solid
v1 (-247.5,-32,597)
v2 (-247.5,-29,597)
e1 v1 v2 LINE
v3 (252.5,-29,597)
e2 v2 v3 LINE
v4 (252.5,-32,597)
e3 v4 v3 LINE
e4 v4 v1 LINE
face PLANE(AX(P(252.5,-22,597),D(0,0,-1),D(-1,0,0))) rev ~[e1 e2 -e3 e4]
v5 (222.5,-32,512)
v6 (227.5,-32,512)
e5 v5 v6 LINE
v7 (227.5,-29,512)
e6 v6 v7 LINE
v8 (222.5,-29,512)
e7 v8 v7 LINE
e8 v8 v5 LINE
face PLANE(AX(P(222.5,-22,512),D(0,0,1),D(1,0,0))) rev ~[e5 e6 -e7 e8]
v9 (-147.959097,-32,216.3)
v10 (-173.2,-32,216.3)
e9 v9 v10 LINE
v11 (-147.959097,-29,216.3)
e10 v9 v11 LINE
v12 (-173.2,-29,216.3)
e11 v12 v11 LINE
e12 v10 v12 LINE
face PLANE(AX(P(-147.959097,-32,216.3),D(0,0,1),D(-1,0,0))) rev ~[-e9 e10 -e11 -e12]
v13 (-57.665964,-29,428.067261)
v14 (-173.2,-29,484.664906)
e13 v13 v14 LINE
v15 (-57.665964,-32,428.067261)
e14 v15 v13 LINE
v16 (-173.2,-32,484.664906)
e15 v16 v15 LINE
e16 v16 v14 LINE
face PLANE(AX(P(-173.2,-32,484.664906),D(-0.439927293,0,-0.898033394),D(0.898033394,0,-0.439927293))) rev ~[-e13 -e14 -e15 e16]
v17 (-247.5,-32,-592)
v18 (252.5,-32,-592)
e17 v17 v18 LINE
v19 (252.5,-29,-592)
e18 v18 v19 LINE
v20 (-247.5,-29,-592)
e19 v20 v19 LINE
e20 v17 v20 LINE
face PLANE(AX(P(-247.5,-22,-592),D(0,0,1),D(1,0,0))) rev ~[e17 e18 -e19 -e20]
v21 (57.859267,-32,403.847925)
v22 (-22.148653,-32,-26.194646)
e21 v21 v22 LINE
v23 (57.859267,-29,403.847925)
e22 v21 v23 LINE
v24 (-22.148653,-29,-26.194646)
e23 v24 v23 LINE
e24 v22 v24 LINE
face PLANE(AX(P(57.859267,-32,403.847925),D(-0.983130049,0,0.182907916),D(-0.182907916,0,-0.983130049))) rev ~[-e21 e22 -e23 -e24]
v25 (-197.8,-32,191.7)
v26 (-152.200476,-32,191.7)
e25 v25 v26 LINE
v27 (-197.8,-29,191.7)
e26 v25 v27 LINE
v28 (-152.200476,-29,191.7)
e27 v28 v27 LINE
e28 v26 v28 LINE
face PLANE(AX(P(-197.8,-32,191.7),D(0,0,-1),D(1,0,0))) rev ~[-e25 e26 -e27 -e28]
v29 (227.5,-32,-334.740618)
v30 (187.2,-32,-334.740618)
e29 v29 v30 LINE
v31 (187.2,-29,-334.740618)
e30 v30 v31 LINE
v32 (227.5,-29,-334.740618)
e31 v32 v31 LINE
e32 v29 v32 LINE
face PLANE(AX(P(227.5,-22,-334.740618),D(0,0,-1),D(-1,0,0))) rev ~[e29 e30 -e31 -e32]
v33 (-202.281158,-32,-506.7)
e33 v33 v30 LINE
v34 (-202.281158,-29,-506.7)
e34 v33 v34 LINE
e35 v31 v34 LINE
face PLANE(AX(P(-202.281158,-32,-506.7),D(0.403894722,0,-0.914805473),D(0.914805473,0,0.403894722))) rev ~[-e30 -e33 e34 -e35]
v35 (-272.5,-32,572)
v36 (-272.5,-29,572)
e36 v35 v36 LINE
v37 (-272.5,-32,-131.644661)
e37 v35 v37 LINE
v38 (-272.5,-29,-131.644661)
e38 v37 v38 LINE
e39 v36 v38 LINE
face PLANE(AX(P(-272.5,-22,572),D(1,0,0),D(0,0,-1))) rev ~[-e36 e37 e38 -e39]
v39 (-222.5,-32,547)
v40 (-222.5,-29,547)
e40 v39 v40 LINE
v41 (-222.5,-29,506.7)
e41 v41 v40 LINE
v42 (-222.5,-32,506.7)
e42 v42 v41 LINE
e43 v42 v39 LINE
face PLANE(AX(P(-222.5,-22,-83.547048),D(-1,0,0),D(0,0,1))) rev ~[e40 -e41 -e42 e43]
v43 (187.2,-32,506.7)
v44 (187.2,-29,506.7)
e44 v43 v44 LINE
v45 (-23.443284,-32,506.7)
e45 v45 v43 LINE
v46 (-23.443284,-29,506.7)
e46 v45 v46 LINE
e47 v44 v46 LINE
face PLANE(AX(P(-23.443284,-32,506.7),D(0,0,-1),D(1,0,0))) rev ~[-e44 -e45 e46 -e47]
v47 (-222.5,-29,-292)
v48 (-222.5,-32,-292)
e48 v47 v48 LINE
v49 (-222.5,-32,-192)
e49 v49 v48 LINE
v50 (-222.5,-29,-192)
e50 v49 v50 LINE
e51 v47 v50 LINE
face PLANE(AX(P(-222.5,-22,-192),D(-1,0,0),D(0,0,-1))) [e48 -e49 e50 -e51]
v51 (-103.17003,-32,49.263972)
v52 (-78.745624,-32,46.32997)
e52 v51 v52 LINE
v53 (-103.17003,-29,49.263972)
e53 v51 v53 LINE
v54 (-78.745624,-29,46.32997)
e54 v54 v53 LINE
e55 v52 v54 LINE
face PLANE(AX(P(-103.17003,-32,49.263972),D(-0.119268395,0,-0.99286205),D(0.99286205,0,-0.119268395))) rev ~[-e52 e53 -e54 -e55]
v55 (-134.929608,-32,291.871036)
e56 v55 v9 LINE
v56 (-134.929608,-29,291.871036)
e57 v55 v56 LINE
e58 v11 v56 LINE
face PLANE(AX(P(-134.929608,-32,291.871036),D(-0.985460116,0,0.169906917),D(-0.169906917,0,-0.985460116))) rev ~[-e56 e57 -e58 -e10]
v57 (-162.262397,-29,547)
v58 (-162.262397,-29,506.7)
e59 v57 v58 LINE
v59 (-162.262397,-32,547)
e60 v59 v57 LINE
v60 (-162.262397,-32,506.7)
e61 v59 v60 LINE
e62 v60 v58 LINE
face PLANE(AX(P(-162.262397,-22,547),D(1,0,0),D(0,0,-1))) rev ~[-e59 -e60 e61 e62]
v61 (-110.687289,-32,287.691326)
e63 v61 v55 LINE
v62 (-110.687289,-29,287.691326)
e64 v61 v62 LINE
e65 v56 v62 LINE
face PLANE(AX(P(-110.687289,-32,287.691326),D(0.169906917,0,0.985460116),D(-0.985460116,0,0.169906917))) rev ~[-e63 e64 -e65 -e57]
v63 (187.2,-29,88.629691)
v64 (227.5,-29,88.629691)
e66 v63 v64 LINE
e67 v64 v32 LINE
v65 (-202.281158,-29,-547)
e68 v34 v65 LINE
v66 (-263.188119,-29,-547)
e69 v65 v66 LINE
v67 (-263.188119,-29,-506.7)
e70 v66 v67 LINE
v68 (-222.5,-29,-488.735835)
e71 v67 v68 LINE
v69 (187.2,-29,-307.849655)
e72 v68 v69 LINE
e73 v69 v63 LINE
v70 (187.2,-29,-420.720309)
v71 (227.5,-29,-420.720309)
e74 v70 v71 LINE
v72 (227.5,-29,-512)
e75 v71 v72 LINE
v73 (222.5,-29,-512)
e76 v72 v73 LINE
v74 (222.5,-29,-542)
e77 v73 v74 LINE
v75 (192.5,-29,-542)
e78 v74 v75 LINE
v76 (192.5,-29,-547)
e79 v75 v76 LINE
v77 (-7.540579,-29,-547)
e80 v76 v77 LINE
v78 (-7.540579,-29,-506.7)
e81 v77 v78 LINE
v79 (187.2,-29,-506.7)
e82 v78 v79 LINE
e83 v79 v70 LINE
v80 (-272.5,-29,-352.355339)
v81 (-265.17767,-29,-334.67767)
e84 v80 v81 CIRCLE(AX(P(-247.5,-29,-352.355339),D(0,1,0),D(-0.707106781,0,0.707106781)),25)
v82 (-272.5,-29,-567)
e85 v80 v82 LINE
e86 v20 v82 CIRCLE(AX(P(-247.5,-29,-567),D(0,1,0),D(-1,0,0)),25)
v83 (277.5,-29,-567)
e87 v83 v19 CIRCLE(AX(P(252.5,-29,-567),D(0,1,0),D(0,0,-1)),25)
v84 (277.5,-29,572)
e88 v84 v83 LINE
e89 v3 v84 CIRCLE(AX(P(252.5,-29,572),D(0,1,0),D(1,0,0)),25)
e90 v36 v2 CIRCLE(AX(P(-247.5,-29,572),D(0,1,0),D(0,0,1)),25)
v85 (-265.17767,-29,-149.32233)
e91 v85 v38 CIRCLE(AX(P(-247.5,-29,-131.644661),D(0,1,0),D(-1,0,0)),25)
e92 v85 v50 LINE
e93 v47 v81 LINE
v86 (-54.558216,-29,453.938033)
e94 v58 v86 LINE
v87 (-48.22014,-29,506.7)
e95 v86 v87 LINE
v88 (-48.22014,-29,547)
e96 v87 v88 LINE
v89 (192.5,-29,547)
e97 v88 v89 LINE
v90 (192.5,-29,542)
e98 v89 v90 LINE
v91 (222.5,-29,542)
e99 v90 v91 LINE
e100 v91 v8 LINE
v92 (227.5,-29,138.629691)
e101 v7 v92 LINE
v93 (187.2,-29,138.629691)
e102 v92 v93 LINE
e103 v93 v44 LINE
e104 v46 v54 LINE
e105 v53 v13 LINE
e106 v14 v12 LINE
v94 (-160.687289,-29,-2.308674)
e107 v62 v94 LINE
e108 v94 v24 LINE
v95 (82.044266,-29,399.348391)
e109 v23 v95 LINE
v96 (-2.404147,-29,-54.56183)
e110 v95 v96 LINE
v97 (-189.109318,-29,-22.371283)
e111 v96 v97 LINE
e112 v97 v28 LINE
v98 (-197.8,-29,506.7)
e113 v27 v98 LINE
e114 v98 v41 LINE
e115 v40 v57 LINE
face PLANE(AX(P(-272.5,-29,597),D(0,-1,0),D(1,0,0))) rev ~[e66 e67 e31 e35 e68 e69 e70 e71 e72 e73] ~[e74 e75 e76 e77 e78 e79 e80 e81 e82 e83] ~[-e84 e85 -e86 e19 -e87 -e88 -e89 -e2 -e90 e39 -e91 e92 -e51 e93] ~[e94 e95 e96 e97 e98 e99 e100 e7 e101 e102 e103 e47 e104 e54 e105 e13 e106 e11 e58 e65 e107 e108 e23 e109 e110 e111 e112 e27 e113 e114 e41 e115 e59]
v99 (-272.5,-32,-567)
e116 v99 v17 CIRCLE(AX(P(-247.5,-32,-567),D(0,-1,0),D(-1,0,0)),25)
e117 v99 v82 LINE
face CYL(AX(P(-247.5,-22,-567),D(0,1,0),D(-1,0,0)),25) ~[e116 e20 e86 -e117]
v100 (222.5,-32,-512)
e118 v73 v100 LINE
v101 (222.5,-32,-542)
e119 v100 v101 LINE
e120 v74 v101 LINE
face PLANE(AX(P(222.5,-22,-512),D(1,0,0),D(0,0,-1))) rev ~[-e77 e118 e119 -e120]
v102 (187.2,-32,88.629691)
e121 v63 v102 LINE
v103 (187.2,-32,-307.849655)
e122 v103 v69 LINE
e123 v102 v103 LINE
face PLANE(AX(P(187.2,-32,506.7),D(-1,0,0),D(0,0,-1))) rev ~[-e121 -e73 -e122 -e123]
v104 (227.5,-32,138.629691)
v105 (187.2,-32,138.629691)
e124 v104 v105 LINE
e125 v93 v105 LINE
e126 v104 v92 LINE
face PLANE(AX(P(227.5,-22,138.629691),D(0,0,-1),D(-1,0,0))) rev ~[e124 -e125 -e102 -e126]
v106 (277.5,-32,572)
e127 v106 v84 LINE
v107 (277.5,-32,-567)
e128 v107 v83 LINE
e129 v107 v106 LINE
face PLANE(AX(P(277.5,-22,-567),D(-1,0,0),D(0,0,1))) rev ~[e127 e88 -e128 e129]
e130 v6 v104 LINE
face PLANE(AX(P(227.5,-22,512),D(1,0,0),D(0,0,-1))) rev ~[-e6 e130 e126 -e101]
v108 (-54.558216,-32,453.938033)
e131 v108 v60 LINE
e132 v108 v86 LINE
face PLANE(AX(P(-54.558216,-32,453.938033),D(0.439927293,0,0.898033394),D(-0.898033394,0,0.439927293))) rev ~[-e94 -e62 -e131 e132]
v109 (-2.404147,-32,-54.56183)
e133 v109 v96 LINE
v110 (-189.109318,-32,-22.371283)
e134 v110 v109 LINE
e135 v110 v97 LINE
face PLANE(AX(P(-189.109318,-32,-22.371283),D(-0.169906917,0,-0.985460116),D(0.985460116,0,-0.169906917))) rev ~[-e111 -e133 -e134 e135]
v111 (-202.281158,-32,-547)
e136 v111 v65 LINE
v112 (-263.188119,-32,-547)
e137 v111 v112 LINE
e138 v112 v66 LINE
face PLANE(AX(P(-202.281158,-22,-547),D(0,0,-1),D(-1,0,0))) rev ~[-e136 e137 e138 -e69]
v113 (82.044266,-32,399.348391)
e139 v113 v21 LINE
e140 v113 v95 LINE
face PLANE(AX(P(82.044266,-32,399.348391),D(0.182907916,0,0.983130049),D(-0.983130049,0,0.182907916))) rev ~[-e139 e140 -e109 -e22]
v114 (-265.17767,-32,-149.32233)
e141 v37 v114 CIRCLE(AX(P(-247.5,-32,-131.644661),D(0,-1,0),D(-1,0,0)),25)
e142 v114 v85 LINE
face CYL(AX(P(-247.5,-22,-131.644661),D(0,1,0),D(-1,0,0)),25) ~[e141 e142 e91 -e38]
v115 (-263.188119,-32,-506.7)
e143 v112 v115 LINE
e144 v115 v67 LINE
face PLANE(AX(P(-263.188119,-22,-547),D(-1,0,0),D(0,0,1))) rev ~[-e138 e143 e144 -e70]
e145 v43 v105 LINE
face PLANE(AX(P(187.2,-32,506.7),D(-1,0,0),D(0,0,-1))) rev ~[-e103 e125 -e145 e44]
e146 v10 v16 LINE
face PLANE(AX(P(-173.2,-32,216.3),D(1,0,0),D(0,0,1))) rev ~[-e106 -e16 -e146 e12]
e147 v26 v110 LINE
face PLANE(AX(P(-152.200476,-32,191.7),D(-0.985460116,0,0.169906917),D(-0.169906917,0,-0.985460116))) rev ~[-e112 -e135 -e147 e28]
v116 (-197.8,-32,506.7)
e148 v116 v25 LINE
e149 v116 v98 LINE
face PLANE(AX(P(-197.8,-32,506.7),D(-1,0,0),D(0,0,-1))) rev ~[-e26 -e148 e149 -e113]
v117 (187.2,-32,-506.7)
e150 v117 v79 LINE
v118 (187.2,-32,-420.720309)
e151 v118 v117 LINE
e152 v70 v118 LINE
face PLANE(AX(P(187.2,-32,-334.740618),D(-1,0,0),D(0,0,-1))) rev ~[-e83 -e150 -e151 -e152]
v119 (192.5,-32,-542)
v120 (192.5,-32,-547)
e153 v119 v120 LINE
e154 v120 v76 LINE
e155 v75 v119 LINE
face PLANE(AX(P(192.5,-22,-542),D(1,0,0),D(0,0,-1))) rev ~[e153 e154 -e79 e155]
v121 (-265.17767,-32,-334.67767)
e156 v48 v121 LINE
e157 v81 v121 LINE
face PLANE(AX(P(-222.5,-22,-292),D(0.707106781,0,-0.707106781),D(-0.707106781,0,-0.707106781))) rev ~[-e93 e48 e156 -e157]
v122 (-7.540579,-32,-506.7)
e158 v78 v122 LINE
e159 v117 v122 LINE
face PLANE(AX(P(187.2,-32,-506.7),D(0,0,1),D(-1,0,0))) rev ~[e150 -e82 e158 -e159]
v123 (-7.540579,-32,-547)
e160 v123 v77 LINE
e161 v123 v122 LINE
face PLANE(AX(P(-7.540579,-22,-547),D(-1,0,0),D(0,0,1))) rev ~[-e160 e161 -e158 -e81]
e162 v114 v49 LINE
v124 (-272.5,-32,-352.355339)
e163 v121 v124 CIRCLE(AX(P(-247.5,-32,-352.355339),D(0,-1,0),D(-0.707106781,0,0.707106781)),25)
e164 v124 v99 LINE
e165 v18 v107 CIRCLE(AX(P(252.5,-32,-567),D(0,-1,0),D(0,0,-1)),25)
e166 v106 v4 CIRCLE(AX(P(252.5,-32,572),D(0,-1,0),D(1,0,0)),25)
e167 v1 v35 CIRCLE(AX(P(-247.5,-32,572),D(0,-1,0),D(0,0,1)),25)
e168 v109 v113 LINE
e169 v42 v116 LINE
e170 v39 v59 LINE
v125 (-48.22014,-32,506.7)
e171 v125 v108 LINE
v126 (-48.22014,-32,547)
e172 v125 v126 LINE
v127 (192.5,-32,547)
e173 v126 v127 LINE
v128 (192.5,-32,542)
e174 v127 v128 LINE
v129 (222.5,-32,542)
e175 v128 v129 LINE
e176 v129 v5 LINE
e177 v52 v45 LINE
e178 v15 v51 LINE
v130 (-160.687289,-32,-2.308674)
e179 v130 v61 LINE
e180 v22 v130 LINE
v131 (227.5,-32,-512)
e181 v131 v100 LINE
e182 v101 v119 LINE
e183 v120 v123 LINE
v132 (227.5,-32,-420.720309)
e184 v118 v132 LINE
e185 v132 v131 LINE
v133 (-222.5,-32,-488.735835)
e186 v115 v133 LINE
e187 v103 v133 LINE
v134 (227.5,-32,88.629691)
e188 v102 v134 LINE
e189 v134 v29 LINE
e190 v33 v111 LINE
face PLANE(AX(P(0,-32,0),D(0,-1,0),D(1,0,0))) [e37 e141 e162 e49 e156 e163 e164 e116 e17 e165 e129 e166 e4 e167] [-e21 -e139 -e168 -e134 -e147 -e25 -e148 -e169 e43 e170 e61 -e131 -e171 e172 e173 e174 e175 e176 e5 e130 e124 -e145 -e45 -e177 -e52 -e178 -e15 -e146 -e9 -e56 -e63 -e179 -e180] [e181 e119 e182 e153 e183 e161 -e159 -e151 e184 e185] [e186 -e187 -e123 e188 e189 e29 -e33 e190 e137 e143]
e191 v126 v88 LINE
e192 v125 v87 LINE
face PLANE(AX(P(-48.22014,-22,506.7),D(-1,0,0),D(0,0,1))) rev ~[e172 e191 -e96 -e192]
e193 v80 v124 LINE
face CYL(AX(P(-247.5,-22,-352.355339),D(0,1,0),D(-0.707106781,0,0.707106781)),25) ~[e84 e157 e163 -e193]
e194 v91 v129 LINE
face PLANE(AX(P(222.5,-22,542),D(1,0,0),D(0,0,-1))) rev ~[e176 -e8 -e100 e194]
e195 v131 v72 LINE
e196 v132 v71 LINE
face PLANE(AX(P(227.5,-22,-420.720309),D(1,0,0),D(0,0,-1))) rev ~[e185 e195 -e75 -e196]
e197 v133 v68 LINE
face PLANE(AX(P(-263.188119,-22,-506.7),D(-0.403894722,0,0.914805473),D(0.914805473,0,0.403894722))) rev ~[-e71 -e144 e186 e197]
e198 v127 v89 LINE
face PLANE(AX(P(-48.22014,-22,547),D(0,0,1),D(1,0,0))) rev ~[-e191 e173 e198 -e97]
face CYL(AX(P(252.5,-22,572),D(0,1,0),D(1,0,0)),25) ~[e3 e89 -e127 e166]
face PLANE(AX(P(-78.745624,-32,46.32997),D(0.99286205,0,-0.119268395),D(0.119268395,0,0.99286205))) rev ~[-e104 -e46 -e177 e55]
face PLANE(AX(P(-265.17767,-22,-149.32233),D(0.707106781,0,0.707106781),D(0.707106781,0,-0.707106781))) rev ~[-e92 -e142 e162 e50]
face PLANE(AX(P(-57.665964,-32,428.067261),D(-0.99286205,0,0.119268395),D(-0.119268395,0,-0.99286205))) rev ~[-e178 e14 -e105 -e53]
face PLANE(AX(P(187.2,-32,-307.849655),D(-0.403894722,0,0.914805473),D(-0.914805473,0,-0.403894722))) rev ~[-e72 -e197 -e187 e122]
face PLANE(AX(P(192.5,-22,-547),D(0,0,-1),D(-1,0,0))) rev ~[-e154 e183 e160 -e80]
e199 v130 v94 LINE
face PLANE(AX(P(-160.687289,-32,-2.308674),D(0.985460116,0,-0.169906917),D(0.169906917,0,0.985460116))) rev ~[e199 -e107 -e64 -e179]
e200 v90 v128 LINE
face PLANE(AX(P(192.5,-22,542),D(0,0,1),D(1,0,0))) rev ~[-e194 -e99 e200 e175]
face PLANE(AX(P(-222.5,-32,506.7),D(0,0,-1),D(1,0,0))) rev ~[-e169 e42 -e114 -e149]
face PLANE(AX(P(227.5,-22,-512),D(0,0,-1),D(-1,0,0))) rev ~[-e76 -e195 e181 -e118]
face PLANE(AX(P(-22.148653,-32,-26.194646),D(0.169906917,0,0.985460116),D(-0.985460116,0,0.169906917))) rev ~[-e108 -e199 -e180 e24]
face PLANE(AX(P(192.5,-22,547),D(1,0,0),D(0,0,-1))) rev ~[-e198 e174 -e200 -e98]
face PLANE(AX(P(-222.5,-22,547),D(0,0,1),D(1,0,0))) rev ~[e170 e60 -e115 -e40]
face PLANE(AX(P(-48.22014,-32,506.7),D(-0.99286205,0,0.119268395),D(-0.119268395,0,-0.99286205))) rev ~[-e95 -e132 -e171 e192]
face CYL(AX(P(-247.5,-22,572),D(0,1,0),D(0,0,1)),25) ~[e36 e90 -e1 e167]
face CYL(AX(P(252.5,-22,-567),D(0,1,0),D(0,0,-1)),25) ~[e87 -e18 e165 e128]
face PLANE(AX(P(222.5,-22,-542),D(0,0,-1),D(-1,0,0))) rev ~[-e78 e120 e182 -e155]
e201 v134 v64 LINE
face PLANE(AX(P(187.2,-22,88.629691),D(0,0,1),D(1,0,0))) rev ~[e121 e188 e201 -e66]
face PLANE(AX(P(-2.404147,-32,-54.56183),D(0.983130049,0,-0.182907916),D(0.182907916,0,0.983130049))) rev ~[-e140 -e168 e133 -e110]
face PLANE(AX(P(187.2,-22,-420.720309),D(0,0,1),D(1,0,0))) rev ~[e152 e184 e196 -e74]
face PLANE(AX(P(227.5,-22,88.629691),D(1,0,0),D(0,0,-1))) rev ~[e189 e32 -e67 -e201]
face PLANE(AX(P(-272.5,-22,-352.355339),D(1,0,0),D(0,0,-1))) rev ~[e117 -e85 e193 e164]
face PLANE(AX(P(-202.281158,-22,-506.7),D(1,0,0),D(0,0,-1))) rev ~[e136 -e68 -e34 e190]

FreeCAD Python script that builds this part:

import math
import FreeCAD as App
import Part
import Sketcher

doc = App.newDocument("Part")
params = doc.addObject("Spreadsheet::Sheet", "Params")
for row, (alias, value) in enumerate([
    ("sketch1_width", "445 mm"),
    ("sketch1_height", "1084 mm"),
    ("pad1_length", "32 mm"),
    ("sketch2_width", "445 mm"),
    ("sketch2_width2", "28 mm"),
    ("sketch2_width3", "132 mm"),
    ("sketch2_height", "820 mm"),
    ("sketch2_height2", "1084 mm"),
    ("pocket1_length", "10 mm"),
    ("sketch3_width", "445 mm"),
    ("sketch3_width2", "445 mm"),
    ("sketch3_height", "315 mm"),
    ("sketch3_height2", "1084 mm"),
    ("sketch3_width3", "24.7 mm"),
    ("pocket2_length", "10 mm"),
    ("sketch4_radius", "25 mm"),
    ("sketch4_width", "500 mm"),
    ("sketch4_width2", "30 mm"),
    ("sketch4_width3", "5 mm"),
    ("sketch4_height", "100 mm"),
    ("pad2_length", "22 mm"),
    ("pad2_length2", "10 mm"),
    ("sketch5_width", "550 mm"),
    ("sketch5_height", "29 mm"),
], start=1):
    params.set(f"A{row}", alias)
    params.set(f"B{row}", "=" + value)
    params.setAlias(f"B{row}", alias)

body = doc.addObject("PartDesign::Body", "Body")

sketch1 = body.newObject("Sketcher::SketchObject", "Sketch")
sketch1.AttachmentSupport = (doc.getObject("XZ_Plane"), [""])
sketch1.MapMode = "FlatFace"
sketch1.addGeometry([
    Part.LineSegment(App.Vector(-222, 542, 0), App.Vector(-222, -542, 0)),
    Part.LineSegment(App.Vector(-222, -542, 0), App.Vector(222, -542, 0)),
    Part.LineSegment(App.Vector(222, -542, 0), App.Vector(222, 542, 0)),
    Part.LineSegment(App.Vector(222, 542, 0), App.Vector(-222, 542, 0)),
], False)
sketch1.addConstraint([
    Sketcher.Constraint("Coincident", 0, 2, 1, 1),
    Sketcher.Constraint("Coincident", 1, 2, 2, 1),
    Sketcher.Constraint("Coincident", 2, 2, 3, 1),
    Sketcher.Constraint("Coincident", 3, 2, 0, 1),
    Sketcher.Constraint("Vertical", 0),
    Sketcher.Constraint("Horizontal", 1),
    Sketcher.Constraint("Vertical", 2),
    Sketcher.Constraint("Horizontal", 3),
    Sketcher.Constraint("Symmetric", 0, 2, 2, 2, -1, 1),
    Sketcher.Constraint("DistanceX", 1, 1, 1, 2, 445.0),
    Sketcher.Constraint("DistanceY", 0, 2, 0, 1, 1084.0),
])
sketch1.setExpression("Constraints[9]", "Params.sketch1_width")
sketch1.setExpression("Constraints[10]", "Params.sketch1_height")
pad1 = body.newObject("PartDesign::Pad", "Pad")
pad1.Profile = sketch1
pad1.setExpression("Length", "Params.pad1_length")

sketch2 = body.newObject("Sketcher::SketchObject", "Sketch001")
sketch2.AttachmentSupport = (doc.getObject("XZ_Plane"), [""])
sketch2.MapMode = "FlatFace"
sketch2.AttachmentOffset = App.Placement(App.Vector(0, 0, 32), App.Rotation())
sketch2.addGeometry([
    Part.LineSegment(App.Vector(-22.79263, -47.697885, 0), App.Vector(-5.0528, -50.756476, 0)),
    Part.LineSegment(App.Vector(-5.0528, -50.756476, 0), App.Vector(78.196341, 396.707658, 0)),
    Part.LineSegment(App.Vector(78.196341, 396.707658, 0), App.Vector(60.5, 400, 0)),
    Part.LineSegment(App.Vector(60.5, 400, 0), App.Vector(-19.5, -30, 0)),
    Part.LineSegment(App.Vector(-19.5, -30, 0), App.Vector(-164.5, -5, 0)),
    Part.LineSegment(App.Vector(-164.5, -5, 0), App.Vector(-114.5, 285, 0)),
    Part.LineSegment(App.Vector(-114.5, 285, 0), App.Vector(-132.238282, 288.058324, 0)),
    Part.LineSegment(App.Vector(-132.238282, 288.058324, 0), App.Vector(-145.179373, 213, 0)),
    Part.LineSegment(App.Vector(-145.179373, 213, 0), App.Vector(-176.5, 213, 0)),
    Part.LineSegment(App.Vector(-176.5, 213, 0), App.Vector(-176.5, 489.956202, 0)),
    Part.LineSegment(App.Vector(-176.5, 489.956202, 0), App.Vector(-54.110068, 430, 0)),
    Part.LineSegment(App.Vector(-54.110068, 430, 0), App.Vector(-99.5, 52.146831, 0)),
    Part.LineSegment(App.Vector(-99.5, 52.146831, 0), App.Vector(-81.628483, 50, 0)),
    Part.LineSegment(App.Vector(-81.628483, 50, 0), App.Vector(-26.370593, 510, 0)),
    Part.LineSegment(App.Vector(-26.370593, 510, 0), App.Vector(190.5, 510, 0)),
    Part.LineSegment(App.Vector(190.5, 510, 0), App.Vector(190.5, -310, 0)),
    Part.LineSegment(App.Vector(190.5, -310, 0), App.Vector(-366.990926, -556.137183, 0)),
    Part.LineSegment(App.Vector(-366.990926, -556.137183, 0), App.Vector(-359.720821, -572.603682, 0)),
    Part.LineSegment(App.Vector(-359.720821, -572.603682, 0), App.Vector(-222.5, -512.019474, 0)),
    Part.LineSegment(App.Vector(-222.5, -512.019474, 0), App.Vector(-222.5, -542, 0)),
    Part.LineSegment(App.Vector(-222.5, -542, 0), App.Vector(222.5, -542, 0)),
    Part.LineSegment(App.Vector(222.5, -542, 0), App.Vector(222.5, 542, 0)),
    Part.LineSegment(App.Vector(222.5, 542, 0), App.Vector(-222.5, 542, 0)),
    Part.LineSegment(App.Vector(-222.5, 542, 0), App.Vector(-222.5, 510, 0)),
    Part.LineSegment(App.Vector(-222.5, 510, 0), App.Vector(-194.5, 510, 0)),
    Part.LineSegment(App.Vector(-194.5, 510, 0), App.Vector(-194.5, 195, 0)),
    Part.LineSegment(App.Vector(-194.5, 195, 0), App.Vector(-148.282821, 195, 0)),
    Part.LineSegment(App.Vector(-148.282821, 195, 0), App.Vector(-185.296607, -19.679958, 0)),
    Part.LineSegment(App.Vector(-185.296607, -19.679958, 0), App.Vector(-167.558324, -22.738282, 0)),
    Part.LineSegment(App.Vector(-167.558324, -22.738282, 0), App.Vector(-22.79263, -47.697885, 0)),
    Part.LineSegment(App.Vector(190.5, -329.676314, 0), App.Vector(190.5, -510, 0)),
    Part.LineSegment(App.Vector(190.5, -510, 0), App.Vector(-217.925973, -510, 0)),
    Part.LineSegment(App.Vector(-217.925973, -510, 0), App.Vector(190.5, -329.676314, 0)),
    Part.LineSegment(App.Vector(-44.5, 510, 0), App.Vector(-51.836106, 448.929833, 0)),
    Part.LineSegment(App.Vector(-51.836106, 448.929833, 0), App.Vector(-176.5, 510, 0)),
    Part.LineSegment(App.Vector(-176.5, 510, 0), App.Vector(-44.5, 510, 0)),
], False)
sketch2.addConstraint([
    Sketcher.Constraint("Coincident", 0, 2, 1, 1),
    Sketcher.Constraint("Coincident", 1, 2, 2, 1),
    Sketcher.Constraint("Coincident", 2, 2, 3, 1),
    Sketcher.Constraint("Coincident", 3, 2, 4, 1),
    Sketcher.Constraint("Coincident", 4, 2, 5, 1),
    Sketcher.Constraint("Coincident", 5, 2, 6, 1),
    Sketcher.Constraint("Coincident", 6, 2, 7, 1),
    Sketcher.Constraint("Coincident", 7, 2, 8, 1),
    Sketcher.Constraint("Coincident", 8, 2, 9, 1),
    Sketcher.Constraint("Coincident", 9, 2, 10, 1),
    Sketcher.Constraint("Coincident", 10, 2, 11, 1),
    Sketcher.Constraint("Coincident", 11, 2, 12, 1),
    Sketcher.Constraint("Coincident", 12, 2, 13, 1),
    Sketcher.Constraint("Coincident", 13, 2, 14, 1),
    Sketcher.Constraint("Coincident", 14, 2, 15, 1),
    Sketcher.Constraint("Coincident", 15, 2, 16, 1),
    Sketcher.Constraint("Coincident", 16, 2, 17, 1),
    Sketcher.Constraint("Coincident", 17, 2, 18, 1),
    Sketcher.Constraint("Coincident", 18, 2, 19, 1),
    Sketcher.Constraint("Coincident", 19, 2, 20, 1),
    Sketcher.Constraint("Coincident", 20, 2, 21, 1),
    Sketcher.Constraint("Coincident", 21, 2, 22, 1),
    Sketcher.Constraint("Coincident", 22, 2, 23, 1),
    Sketcher.Constraint("Coincident", 23, 2, 24, 1),
    Sketcher.Constraint("Coincident", 24, 2, 25, 1),
    Sketcher.Constraint("Coincident", 25, 2, 26, 1),
    Sketcher.Constraint("Coincident", 26, 2, 27, 1),
    Sketcher.Constraint("Coincident", 27, 2, 28, 1),
    Sketcher.Constraint("Coincident", 28, 2, 29, 1),
    Sketcher.Constraint("Coincident", 29, 2, 0, 1),
    Sketcher.Constraint("Coincident", 30, 2, 31, 1),
    Sketcher.Constraint("Coincident", 31, 2, 32, 1),
    Sketcher.Constraint("Coincident", 32, 2, 30, 1),
    Sketcher.Constraint("Coincident", 33, 2, 34, 1),
    Sketcher.Constraint("Coincident", 34, 2, 35, 1),
    Sketcher.Constraint("Coincident", 35, 2, 33, 1),
    Sketcher.Constraint("Horizontal", 8),
    Sketcher.Constraint("Vertical", 9),
    Sketcher.Constraint("Horizontal", 14),
    Sketcher.Constraint("Vertical", 15),
    Sketcher.Constraint("Vertical", 19),
    Sketcher.Constraint("Horizontal", 20),
    Sketcher.Constraint("Vertical", 21),
    Sketcher.Constraint("Horizontal", 22),
    Sketcher.Constraint("Vertical", 23),
    Sketcher.Constraint("Horizontal", 24),
    Sketcher.Constraint("Vertical", 25),
    Sketcher.Constraint("Horizontal", 26),
    Sketcher.Constraint("Vertical", 30),
    Sketcher.Constraint("Horizontal", 31),
    Sketcher.Constraint("Horizontal", 35),
    Sketcher.Constraint("Symmetric", 19, 2, 21, 2, -1, 1),
    Sketcher.Constraint("Symmetric", 14, 2, 30, 2, -1),
    Sketcher.Constraint("Perpendicular", 1, 2),
    Sketcher.Constraint("Perpendicular", 2, 3),
    Sketcher.Constraint("Parallel", 0, 4),
    Sketcher.Constraint("Perpendicular", 4, 5),
    Sketcher.Constraint("Perpendicular", 5, 6),
    Sketcher.Constraint("Perpendicular", 6, 7),
    Sketcher.Constraint("Perpendicular", 11, 12),
    Sketcher.Constraint("Perpendicular", 12, 13),
    Sketcher.Constraint("Perpendicular", 16, 17),
    Sketcher.Constraint("Perpendicular", 17, 18),
    Sketcher.Constraint("Parallel", 7, 27),
    Sketcher.Constraint("Perpendicular", 27, 28),
    Sketcher.Constraint("Parallel", 28, 29),
    Sketcher.Constraint("Parallel", 18, 32),
    Sketcher.Constraint("Parallel", 13, 33),
    Sketcher.Constraint("Parallel", 10, 34),
    Sketcher.Constraint("Horizontal", 14, 2, 23, 2),
    Sketcher.Constraint("Horizontal", 24, 2, 34, 2),
    Sketcher.Constraint("Vertical", 19, 2, 22, 2),
    Sketcher.Constraint("Vertical", 9, 2, 34, 2),
    Sketcher.Constraint("Equal", 2, 6),
    Sketcher.Constraint("Equal", 6, 12),
    Sketcher.Constraint("Equal", 12, 17),
    Sketcher.Constraint("Equal", 17, 28),
    Sketcher.Constraint("DistanceX", 20, 1, 20, 2, 445.0),
    Sketcher.Constraint("DistanceX", 24, 1, 24, 2, 28.0),
    Sketcher.Constraint("DistanceX", 35, 1, 35, 2, 132.0),
    Sketcher.Constraint("DistanceY", 15, 2, 15, 1, 820.0),
    Sketcher.Constraint("DistanceY", 21, 1, 21, 2, 1084.0),
    Sketcher.Constraint("DistanceY", 23, 2, 23, 1, 32.0),
    Sketcher.Constraint("DistanceY", 25, 2, 25, 1, 315.0),
    Sketcher.Constraint("Distance", 2, 18.0),
    Sketcher.Constraint("Distance", 18, 150.0),
    Sketcher.Constraint("DistanceY", -1, 1, 2, 2, 400.0),
    Sketcher.Constraint("DistanceY", 3, 2, -1, 1, 30.0),
    Sketcher.Constraint("DistanceY", 4, 2, -1, 1, 5.0),
    Sketcher.Constraint("DistanceY", -1, 1, 5, 2, 285.0),
    Sketcher.Constraint("DistanceY", -1, 1, 7, 2, 213.0),
    Sketcher.Constraint("DistanceY", -1, 1, 10, 2, 430.0),
    Sketcher.Constraint("DistanceY", -1, 1, 12, 2, 50.0),
    Sketcher.Constraint("DistanceX", 3, 2, 2, 2, 80.0),
    Sketcher.Constraint("DistanceX", 4, 2, 3, 2, 145.0),
    Sketcher.Constraint("DistanceX", 8, 2, 5, 2, 62.0),
    Sketcher.Constraint("DistanceX", 4, 2, 11, 2, 65.0),
    Sketcher.Constraint("DistanceX", 2, 2, 14, 2, 130.0),
    Sketcher.Constraint("DistanceX", 18, 2, 15, 2, 413.0),
    Sketcher.Constraint("DistanceY", 9, 1, 9, 2, 276.956202),
    Sketcher.Constraint("Distance", 32, 446.4621),
    Sketcher.Constraint("DistanceX", 26, 1, 26, 2, 46.217179),
    Sketcher.Constraint("DistanceX", 0, 2, -1, 1, 5.0528),
    Sketcher.Constraint("DistanceY", 17, 2, 16, 2, 16.466499),
    Sketcher.Constraint("Distance", 0, 18.00157),
    Sketcher.Constraint("DistanceX", 14, 1, 14, 2, 216.870593),
])
sketch2.setExpression("Constraints[77]", "Params.sketch2_width")
sketch2.setExpression("Constraints[78]", "Params.sketch2_width2")
sketch2.setExpression("Constraints[79]", "Params.sketch2_width3")
sketch2.setExpression("Constraints[80]", "Params.sketch2_height")
sketch2.setExpression("Constraints[81]", "Params.sketch2_height2")
pocket1 = body.newObject("PartDesign::Pocket", "Pocket")
pocket1.Profile = sketch2
pocket1.setExpression("Length", "Params.pocket1_length")

sketch3 = body.newObject("Sketcher::SketchObject", "Sketch002")
sketch3.AttachmentSupport = (doc.getObject("XZ_Plane"), [""])
sketch3.MapMode = "FlatFace"
sketch3.AttachmentOffset = App.Placement(App.Vector(0, 0, 32), App.Rotation())
sketch3.addGeometry([
    Part.LineSegment(App.Vector(-222.5, 542, 0), App.Vector(-222.5, 506.7, 0)),
    Part.LineSegment(App.Vector(-222.5, 506.7, 0), App.Vector(-197.8, 506.7, 0)),
    Part.LineSegment(App.Vector(-197.8, 506.7, 0), App.Vector(-197.8, 191.7, 0)),
    Part.LineSegment(App.Vector(-197.8, 191.7, 0), App.Vector(-152.200476, 191.7, 0)),
    Part.LineSegment(App.Vector(-152.200476, 191.7, 0), App.Vector(-189.109318, -22.371283, 0)),
    Part.LineSegment(App.Vector(-189.109318, -22.371283, 0), App.Vector(-2.404147, -54.56183, 0)),
    Part.LineSegment(App.Vector(-2.404147, -54.56183, 0), App.Vector(82.044266, 399.348391, 0)),
    Part.LineSegment(App.Vector(82.044266, 399.348391, 0), App.Vector(57.859267, 403.847925, 0)),
    Part.LineSegment(App.Vector(57.859267, 403.847925, 0), App.Vector(-22.148653, -26.194646, 0)),
    Part.LineSegment(App.Vector(-22.148653, -26.194646, 0), App.Vector(-160.687289, -2.308674, 0)),
    Part.LineSegment(App.Vector(-160.687289, -2.308674, 0), App.Vector(-110.687289, 287.691326, 0)),
    Part.LineSegment(App.Vector(-110.687289, 287.691326, 0), App.Vector(-134.929608, 291.871036, 0)),
    Part.LineSegment(App.Vector(-134.929608, 291.871036, 0), App.Vector(-147.959097, 216.3, 0)),
    Part.LineSegment(App.Vector(-147.959097, 216.3, 0), App.Vector(-173.2, 216.3, 0)),
    Part.LineSegment(App.Vector(-173.2, 216.3, 0), App.Vector(-173.2, 484.664906, 0)),
    Part.LineSegment(App.Vector(-173.2, 484.664906, 0), App.Vector(-57.665964, 428.067261, 0)),
    Part.LineSegment(App.Vector(-57.665964, 428.067261, 0), App.Vector(-103.17003, 49.263972, 0)),
    Part.LineSegment(App.Vector(-103.17003, 49.263972, 0), App.Vector(-78.745624, 46.32997, 0)),
    Part.LineSegment(App.Vector(-78.745624, 46.32997, 0), App.Vector(-23.443284, 506.7, 0)),
    Part.LineSegment(App.Vector(-23.443284, 506.7, 0), App.Vector(187.2, 506.7, 0)),
    Part.LineSegment(App.Vector(187.2, 506.7, 0), App.Vector(187.2, -307.849655, 0)),
    Part.LineSegment(App.Vector(187.2, -307.849655, 0), App.Vector(-222.5, -488.735835, 0)),
    Part.LineSegment(App.Vector(-222.5, -488.735835, 0), App.Vector(-222.5, -542, 0)),
    Part.LineSegment(App.Vector(-222.5, -542, 0), App.Vector(222.5, -542, 0)),
    Part.LineSegment(App.Vector(222.5, -542, 0), App.Vector(222.5, 542, 0)),
    Part.LineSegment(App.Vector(222.5, 542, 0), App.Vector(-222.5, 542, 0)),
    Part.LineSegment(App.Vector(187.2, -506.7, 0), App.Vector(-202.281158, -506.7, 0)),
    Part.LineSegment(App.Vector(-202.281158, -506.7, 0), App.Vector(187.2, -334.740618, 0)),
    Part.LineSegment(App.Vector(187.2, -334.740618, 0), App.Vector(187.2, -506.7, 0)),
    Part.LineSegment(App.Vector(-48.22014, 506.7, 0), App.Vector(-54.558216, 453.938033, 0)),
    Part.LineSegment(App.Vector(-54.558216, 453.938033, 0), App.Vector(-162.262397, 506.7, 0)),
    Part.LineSegment(App.Vector(-162.262397, 506.7, 0), App.Vector(-48.22014, 506.7, 0)),
], False)
sketch3.addConstraint([
    Sketcher.Constraint("Coincident", 0, 2, 1, 1),
    Sketcher.Constraint("Coincident", 1, 2, 2, 1),
    Sketcher.Constraint("Coincident", 2, 2, 3, 1),
    Sketcher.Constraint("Coincident", 3, 2, 4, 1),
    Sketcher.Constraint("Coincident", 4, 2, 5, 1),
    Sketcher.Constraint("Coincident", 5, 2, 6, 1),
    Sketcher.Constraint("Coincident", 6, 2, 7, 1),
    Sketcher.Constraint("Coincident", 7, 2, 8, 1),
    Sketcher.Constraint("Coincident", 8, 2, 9, 1),
    Sketcher.Constraint("Coincident", 9, 2, 10, 1),
    Sketcher.Constraint("Coincident", 10, 2, 11, 1),
    Sketcher.Constraint("Coincident", 11, 2, 12, 1),
    Sketcher.Constraint("Coincident", 12, 2, 13, 1),
    Sketcher.Constraint("Coincident", 13, 2, 14, 1),
    Sketcher.Constraint("Coincident", 14, 2, 15, 1),
    Sketcher.Constraint("Coincident", 15, 2, 16, 1),
    Sketcher.Constraint("Coincident", 16, 2, 17, 1),
    Sketcher.Constraint("Coincident", 17, 2, 18, 1),
    Sketcher.Constraint("Coincident", 18, 2, 19, 1),
    Sketcher.Constraint("Coincident", 19, 2, 20, 1),
    Sketcher.Constraint("Coincident", 20, 2, 21, 1),
    Sketcher.Constraint("Coincident", 21, 2, 22, 1),
    Sketcher.Constraint("Coincident", 22, 2, 23, 1),
    Sketcher.Constraint("Coincident", 23, 2, 24, 1),
    Sketcher.Constraint("Coincident", 24, 2, 25, 1),
    Sketcher.Constraint("Coincident", 25, 2, 0, 1),
    Sketcher.Constraint("Coincident", 26, 2, 27, 1),
    Sketcher.Constraint("Coincident", 27, 2, 28, 1),
    Sketcher.Constraint("Coincident", 28, 2, 26, 1),
    Sketcher.Constraint("Coincident", 29, 2, 30, 1),
    Sketcher.Constraint("Coincident", 30, 2, 31, 1),
    Sketcher.Constraint("Coincident", 31, 2, 29, 1),
    Sketcher.Constraint("Vertical", 0),
    Sketcher.Constraint("Horizontal", 1),
    Sketcher.Constraint("Vertical", 2),
    Sketcher.Constraint("Horizontal", 3),
    Sketcher.Constraint("Horizontal", 13),
    Sketcher.Constraint("Vertical", 14),
    Sketcher.Constraint("Horizontal", 19),
    Sketcher.Constraint("Vertical", 20),
    Sketcher.Constraint("Vertical", 22),
    Sketcher.Constraint("Horizontal", 23),
    Sketcher.Constraint("Vertical", 24),
    Sketcher.Constraint("Horizontal", 25),
    Sketcher.Constraint("Horizontal", 26),
    Sketcher.Constraint("Vertical", 28),
    Sketcher.Constraint("Horizontal", 31),
    Sketcher.Constraint("DistanceX", 23, 1, 23, 2, 445.0),
    Sketcher.Constraint("DistanceX", 25, 2, 25, 1, 445.0),
    Sketcher.Constraint("DistanceY", 2, 2, 2, 1, 315.0),
    Sketcher.Constraint("DistanceY", 24, 1, 24, 2, 1084.0),
    Sketcher.Constraint("DistanceX", 1, 1, 1, 2, 24.7),
    Sketcher.Constraint("DistanceY", 0, 2, 0, 1, 35.3),
    Sketcher.Constraint("DistanceY", 22, 2, -1, 1, 542.0),
    Sketcher.Constraint("Distance", 7, 24.6),
    Sketcher.Constraint("Distance", 11, 24.6),
    Sketcher.Constraint("Distance", 17, 24.6),
    Sketcher.Constraint("DistanceX", 0, 2, -1, 1, 222.5),
    Sketcher.Constraint("DistanceY", -1, 1, 12, 2, 216.3),
    Sketcher.Constraint("DistanceX", 13, 2, -1, 1, 173.2),
    Sketcher.Constraint("DistanceY", -1, 1, 18, 2, 506.7),
    Sketcher.Constraint("DistanceX", -1, 1, 19, 2, 187.2),
    Sketcher.Constraint("DistanceY", 26, 2, -1, 1, 506.7),
    Sketcher.Constraint("DistanceX", -1, 1, 27, 2, 187.2),
    Sketcher.Constraint("DistanceY", -1, 1, 30, 2, 506.7),
    Sketcher.Constraint("DistanceX", 7, 2, 6, 2, 24.184999),
    Sketcher.Constraint("DistanceY", 10, 2, 7, 2, 116.1566),
    Sketcher.Constraint("DistanceY", 5, 2, 16, 2, 103.825802),
    Sketcher.Constraint("DistanceY", 5, 2, 17, 2, 100.891799),
    Sketcher.Constraint("Distance", 4, 217.229779),
    Sketcher.Constraint("Distance", 6, 461.699061),
    Sketcher.Constraint("Distance", 9, 140.582692),
    Sketcher.Constraint("Distance", 10, 294.278779),
    Sketcher.Constraint("Distance", 12, 76.686042),
    Sketcher.Constraint("Distance", 15, 128.652271),
    Sketcher.Constraint("Distance", 27, 425.752982),
    Sketcher.Constraint("Distance", 30, 119.933381),
    Sketcher.Constraint("DistanceX", 3, 1, 3, 2, 45.599524),
    Sketcher.Constraint("DistanceX", 13, 2, 13, 1, 25.240903),
    Sketcher.Constraint("DistanceX", 19, 1, 19, 2, 210.643284),
    Sketcher.Constraint("DistanceX", 26, 2, 26, 1, 389.481158),
    Sketcher.Constraint("DistanceX", 31, 1, 31, 2, 114.042257),
    Sketcher.Constraint("DistanceY", 14, 1, 14, 2, 268.364906),
    Sketcher.Constraint("DistanceY", 20, 2, 20, 1, 814.549655),
    Sketcher.Constraint("DistanceY", 22, 2, 22, 1, 53.264165),
    Sketcher.Constraint("DistanceY", 5, 2, -1, 1, 54.56183),
    Sketcher.Constraint("DistanceY", -1, 1, 6, 2, 399.348391),
    Sketcher.Constraint("DistanceX", 9, 2, -1, 1, 160.687289),
    Sketcher.Constraint("DistanceX", 10, 2, -1, 1, 110.687289),
    Sketcher.Constraint("DistanceY", -1, 1, 15, 2, 428.067261),
    Sketcher.Constraint("DistanceX", 16, 2, -1, 1, 103.17003),
    Sketcher.Constraint("DistanceX", 31, 2, -1, 1, 48.22014),
    Sketcher.Constraint("DistanceX", 4, 2, 3, 2, 36.908842),
    Sketcher.Constraint("DistanceX", 4, 2, 5, 2, 186.705171),
    Sketcher.Constraint("DistanceX", 8, 2, 7, 2, 80.00792),
    Sketcher.Constraint("DistanceX", 15, 2, 29, 2, 3.107748),
])
sketch3.setExpression("Constraints[47]", "Params.sketch3_width")
sketch3.setExpression("Constraints[48]", "Params.sketch3_width2")
sketch3.setExpression("Constraints[49]", "Params.sketch3_height")
sketch3.setExpression("Constraints[50]", "Params.sketch3_height2")
sketch3.setExpression("Constraints[51]", "Params.sketch3_width3")
pocket2 = body.newObject("PartDesign::Pocket", "Pocket001")
pocket2.Profile = sketch3
pocket2.setExpression("Length", "Params.pocket2_length")

sketch4 = body.newObject("Sketcher::SketchObject", "Sketch003")
sketch4.AttachmentSupport = (doc.getObject("XZ_Plane"), [""])
sketch4.MapMode = "FlatFace"
sketch4.AttachmentOffset = App.Placement(App.Vector(0, 0, 22), App.Rotation())
sketch4.addGeometry([
    Part.LineSegment(App.Vector(-222, -192, 0), App.Vector(-222, -292, 0)),
    Part.LineSegment(App.Vector(-222, -292, 0), App.Vector(-265, -335, 0)),
    Part.ArcOfCircle(Part.Circle(App.Vector(-248, -352, 0), App.Vector(0, 0, 1), 25), math.radians(135), math.radians(180)),
    Part.LineSegment(App.Vector(-272, -352, 0), App.Vector(-272, -567, 0)),
    Part.ArcOfCircle(Part.Circle(App.Vector(-248, -567, 0), App.Vector(0, 0, 1), 25), math.radians(180), math.radians(270)),
    Part.LineSegment(App.Vector(-248, -592, 0), App.Vector(252, -592, 0)),
    Part.ArcOfCircle(Part.Circle(App.Vector(252, -567, 0), App.Vector(0, 0, 1), 25), math.radians(-90), math.radians(0)),
    Part.LineSegment(App.Vector(278, -567, 0), App.Vector(278, 572, 0)),
    Part.ArcOfCircle(Part.Circle(App.Vector(252, 572, 0), App.Vector(0, 0, 1), 25), math.radians(0), math.radians(90)),
    Part.LineSegment(App.Vector(252, 597, 0), App.Vector(-248, 597, 0)),
    Part.ArcOfCircle(Part.Circle(App.Vector(-248, 572, 0), App.Vector(0, 0, 1), 25), math.radians(90), math.radians(180)),
    Part.LineSegment(App.Vector(-272, 572, 0), App.Vector(-272, -132, 0)),
    Part.ArcOfCircle(Part.Circle(App.Vector(-248, -132, 0), App.Vector(0, 0, 1), 25), math.radians(180), math.radians(225)),
    Part.LineSegment(App.Vector(-265, -149, 0), App.Vector(-222, -192, 0)),
    Part.LineSegment(App.Vector(-222, 547, 0), App.Vector(-162, 547, 0)),
    Part.LineSegment(App.Vector(-162, 547, 0), App.Vector(-162, 507, 0)),
    Part.LineSegment(App.Vector(-162, 507, 0), App.Vector(-48, 507, 0)),
    Part.LineSegment(App.Vector(-48, 507, 0), App.Vector(-48, 547, 0)),
    Part.LineSegment(App.Vector(-48, 547, 0), App.Vector(192, 547, 0)),
    Part.LineSegment(App.Vector(192, 547, 0), App.Vector(192, 542, 0)),
    Part.LineSegment(App.Vector(192, 542, 0), App.Vector(222, 542, 0)),
    Part.LineSegment(App.Vector(222, 542, 0), App.Vector(222, 512, 0)),
    Part.LineSegment(App.Vector(222, 512, 0), App.Vector(228, 512, 0)),
    Part.LineSegment(App.Vector(228, 512, 0), App.Vector(228, 139, 0)),
    Part.LineSegment(App.Vector(228, 139, 0), App.Vector(187, 139, 0)),
    Part.LineSegment(App.Vector(187, 139, 0), App.Vector(187, 89, 0)),
    Part.LineSegment(App.Vector(187, 89, 0), App.Vector(228, 89, 0)),
    Part.LineSegment(App.Vector(228, 89, 0), App.Vector(228, -335, 0)),
    Part.LineSegment(App.Vector(228, -335, 0), App.Vector(187, -335, 0)),
    Part.LineSegment(App.Vector(187, -335, 0), App.Vector(187, -421, 0)),
    Part.LineSegment(App.Vector(187, -421, 0), App.Vector(228, -421, 0)),
    Part.LineSegment(App.Vector(228, -421, 0), App.Vector(228, -512, 0)),
    Part.LineSegment(App.Vector(228, -512, 0), App.Vector(222, -512, 0)),
    Part.LineSegment(App.Vector(222, -512, 0), App.Vector(222, -542, 0)),
    Part.LineSegment(App.Vector(222, -542, 0), App.Vector(192, -542, 0)),
    Part.LineSegment(App.Vector(192, -542, 0), App.Vector(192, -547, 0)),
    Part.LineSegment(App.Vector(192, -547, 0), App.Vector(-8, -547, 0)),
    Part.LineSegment(App.Vector(-8, -547, 0), App.Vector(-8, -507, 0)),
    Part.LineSegment(App.Vector(-8, -507, 0), App.Vector(-202, -507, 0)),
    Part.LineSegment(App.Vector(-202, -507, 0), App.Vector(-202, -547, 0)),
    Part.LineSegment(App.Vector(-202, -547, 0), App.Vector(-263, -547, 0)),
    Part.LineSegment(App.Vector(-263, -547, 0), App.Vector(-263, -507, 0)),
    Part.LineSegment(App.Vector(-263, -507, 0), App.Vector(-222, -489, 0)),
    Part.LineSegment(App.Vector(-222, -489, 0), App.Vector(-222, -398, 0)),
    Part.LineSegment(App.Vector(-222, -398, 0), App.Vector(-146, -398, 0)),
    Part.LineSegment(App.Vector(-146, -398, 0), App.Vector(-146, -84, 0)),
    Part.LineSegment(App.Vector(-146, -84, 0), App.Vector(-222, -84, 0)),
    Part.LineSegment(App.Vector(-222, -84, 0), App.Vector(-222, 547, 0)),
], False)
sketch4.addConstraint([
    Sketcher.Constraint("Coincident", 0, 2, 1, 1),
    Sketcher.Constraint("Tangent", 1, 2, 2, 1),
    Sketcher.Constraint("Tangent", 2, 2, 3, 1),
    Sketcher.Constraint("Tangent", 3, 2, 4, 1),
    Sketcher.Constraint("Tangent", 4, 2, 5, 1),
    Sketcher.Constraint("Tangent", 5, 2, 6, 1),
    Sketcher.Constraint("Tangent", 6, 2, 7, 1),
    Sketcher.Constraint("Tangent", 7, 2, 8, 1),
    Sketcher.Constraint("Tangent", 8, 2, 9, 1),
    Sketcher.Constraint("Tangent", 9, 2, 10, 1),
    Sketcher.Constraint("Tangent", 10, 2, 11, 1),
    Sketcher.Constraint("Tangent", 11, 2, 12, 1),
    Sketcher.Constraint("Tangent", 12, 2, 13, 1),
    Sketcher.Constraint("Coincident", 13, 2, 0, 1),
    Sketcher.Constraint("Coincident", 14, 2, 15, 1),
    Sketcher.Constraint("Coincident", 15, 2, 16, 1),
    Sketcher.Constraint("Coincident", 16, 2, 17, 1),
    Sketcher.Constraint("Coincident", 17, 2, 18, 1),
    Sketcher.Constraint("Coincident", 18, 2, 19, 1),
    Sketcher.Constraint("Coincident", 19, 2, 20, 1),
    Sketcher.Constraint("Coincident", 20, 2, 21, 1),
    Sketcher.Constraint("Coincident", 21, 2, 22, 1),
    Sketcher.Constraint("Coincident", 22, 2, 23, 1),
    Sketcher.Constraint("Coincident", 23, 2, 24, 1),
    Sketcher.Constraint("Coincident", 24, 2, 25, 1),
    Sketcher.Constraint("Coincident", 25, 2, 26, 1),
    Sketcher.Constraint("Coincident", 26, 2, 27, 1),
    Sketcher.Constraint("Coincident", 27, 2, 28, 1),
    Sketcher.Constraint("Coincident", 28, 2, 29, 1),
    Sketcher.Constraint("Coincident", 29, 2, 30, 1),
    Sketcher.Constraint("Coincident", 30, 2, 31, 1),
    Sketcher.Constraint("Coincident", 31, 2, 32, 1),
    Sketcher.Constraint("Coincident", 32, 2, 33, 1),
    Sketcher.Constraint("Coincident", 33, 2, 34, 1),
    Sketcher.Constraint("Coincident", 34, 2, 35, 1),
    Sketcher.Constraint("Coincident", 35, 2, 36, 1),
    Sketcher.Constraint("Coincident", 36, 2, 37, 1),
    Sketcher.Constraint("Coincident", 37, 2, 38, 1),
    Sketcher.Constraint("Coincident", 38, 2, 39, 1),
    Sketcher.Constraint("Coincident", 39, 2, 40, 1),
    Sketcher.Constraint("Coincident", 40, 2, 41, 1),
    Sketcher.Constraint("Coincident", 41, 2, 42, 1),
    Sketcher.Constraint("Coincident", 42, 2, 43, 1),
    Sketcher.Constraint("Coincident", 43, 2, 44, 1),
    Sketcher.Constraint("Coincident", 44, 2, 45, 1),
    Sketcher.Constraint("Coincident", 45, 2, 46, 1),
    Sketcher.Constraint("Coincident", 46, 2, 47, 1),
    Sketcher.Constraint("Coincident", 47, 2, 14, 1),
    Sketcher.Constraint("Vertical", 0),
    Sketcher.Constraint("Vertical", 3),
    Sketcher.Constraint("Horizontal", 5),
    Sketcher.Constraint("Vertical", 7),
    Sketcher.Constraint("Horizontal", 9),
    Sketcher.Constraint("Vertical", 11),
    Sketcher.Constraint("Horizontal", 14),
    Sketcher.Constraint("Vertical", 15),
    Sketcher.Constraint("Horizontal", 16),
    Sketcher.Constraint("Vertical", 17),
    Sketcher.Constraint("Horizontal", 18),
    Sketcher.Constraint("Vertical", 19),
    Sketcher.Constraint("Horizontal", 20),
    Sketcher.Constraint("Vertical", 21),
    Sketcher.Constraint("Horizontal", 22),
    Sketcher.Constraint("Vertical", 23),
    Sketcher.Constraint("Horizontal", 24),
    Sketcher.Constraint("Vertical", 25),
    Sketcher.Constraint("Horizontal", 26),
    Sketcher.Constraint("Vertical", 27),
    Sketcher.Constraint("Horizontal", 28),
    Sketcher.Constraint("Vertical", 29),
    Sketcher.Constraint("Horizontal", 30),
    Sketcher.Constraint("Vertical", 31),
    Sketcher.Constraint("Horizontal", 32),
    Sketcher.Constraint("Vertical", 33),
    Sketcher.Constraint("Horizontal", 34),
    Sketcher.Constraint("Vertical", 35),
    Sketcher.Constraint("Horizontal", 36),
    Sketcher.Constraint("Vertical", 37),
    Sketcher.Constraint("Horizontal", 38),
    Sketcher.Constraint("Vertical", 39),
    Sketcher.Constraint("Horizontal", 40),
    Sketcher.Constraint("Vertical", 41),
    Sketcher.Constraint("Vertical", 43),
    Sketcher.Constraint("Horizontal", 44),
    Sketcher.Constraint("Vertical", 45),
    Sketcher.Constraint("Horizontal", 46),
    Sketcher.Constraint("Vertical", 47),
    Sketcher.Constraint("Equal", 2, 4),
    Sketcher.Constraint("Equal", 4, 6),
    Sketcher.Constraint("Equal", 6, 8),
    Sketcher.Constraint("Equal", 8, 10),
    Sketcher.Constraint("Equal", 10, 12),
    Sketcher.Constraint("Symmetric", 22, 2, 31, 2, -1),
    Sketcher.Constraint("Symmetric", 20, 2, 33, 2, -1),
    Sketcher.Constraint("Symmetric", 18, 2, 35, 2, -1),
    Sketcher.Constraint("Perpendicular", 1, 13),
    Sketcher.Constraint("Horizontal", 14, 2, 17, 2),
    Sketcher.Constraint("Horizontal", 36, 2, 39, 2),
    Sketcher.Constraint("Horizontal", 38, 2, 41, 2),
    Sketcher.Constraint("Vertical", 4, 3, 10, 3),
    Sketcher.Constraint("Vertical", 1, 2, 12, 2),
    Sketcher.Constraint("Vertical", 23, 2, 26, 2),
    Sketcher.Constraint("Vertical", 25, 2, 28, 2),
    Sketcher.Constraint("Vertical", 13, 2, 42, 2),
    Sketcher.Constraint("Vertical", 43, 2, 46, 2),
    Sketcher.Constraint("Equal", 30, 15),
    Sketcher.Constraint("Equal", 32, 19),
    Sketcher.Constraint("Equal", 34, 21),
    Sketcher.Constraint("Equal", 17, 37),
    Sketcher.Constraint("Radius", 2, 25.0),
    Sketcher.Constraint("DistanceX", 5, 1, 5, 2, 500.0),
    Sketcher.Constraint("DistanceX", 20, 1, 20, 2, 30.0),
    Sketcher.Constraint("DistanceX", 22, 1, 22, 2, 5.0),
    Sketcher.Constraint("DistanceY", 0, 2, 0, 1, 100.0),
    Sketcher.Constraint("DistanceY", 7, 1, 7, 2, 1139.0),
    Sketcher.Constraint("DistanceY", 25, 2, 25, 1, 50.0),
    Sketcher.Constraint("DistanceX", 24, 2, 24, 1, 40.3),
    Sketcher.Constraint("DistanceY", 4, 3, -1, 1, 567.0),
    Sketcher.Constraint("DistanceY", 0, 2, -1, 1, 292.0),
    Sketcher.Constraint("DistanceY", -1, 1, 14, 2, 547.0),
    Sketcher.Constraint("DistanceX", 2, 3, 0, 2, 25.0),
    Sketcher.Constraint("DistanceX", 18, 2, 8, 3, 60.0),
    Sketcher.Constraint("DistanceX", 2, 3, -1, 1, 247.5),
    Sketcher.Constraint("DistanceX", 18, 1, 18, 2, 240.72014),
    Sketcher.Constraint("DistanceX", 36, 2, 36, 1, 200.040579),
    Sketcher.Constraint("DistanceX", 38, 2, 38, 1, 194.740579),
    Sketcher.Constraint("DistanceX", 40, 2, 40, 1, 60.906961),
    Sketcher.Constraint("DistanceY", 23, 2, 23, 1, 373.370309),
    Sketcher.Constraint("DistanceY", 27, 2, 27, 1, 423.370309),
    Sketcher.Constraint("DistanceY", 29, 2, 29, 1, 85.979691),
    Sketcher.Constraint("DistanceY", 43, 1, 43, 2, 90.678762),
    Sketcher.Constraint("DistanceY", 47, 1, 47, 2, 630.547048),
    Sketcher.Constraint("DistanceX", 14, 1, 14, 2, 60.237603),
    Sketcher.Constraint("DistanceX", 44, 1, 44, 2, 76.278154),
    Sketcher.Constraint("DistanceY", 45, 1, 45, 2, 314.510025),
])
sketch4.setExpression("Constraints[109]", "Params.sketch4_radius")
sketch4.setExpression("Constraints[110]", "Params.sketch4_width")
sketch4.setExpression("Constraints[111]", "Params.sketch4_width2")
sketch4.setExpression("Constraints[112]", "Params.sketch4_width3")
sketch4.setExpression("Constraints[113]", "Params.sketch4_height")
pad2 = body.newObject("PartDesign::Pad", "Pad001")
pad2.Profile = sketch4
pad2.Type = "TwoLengths"
pad2.setExpression("Length", "Params.pad2_length")
pad2.setExpression("Length2", "Params.pad2_length2")
pad2.Reversed = True

sketch5 = body.newObject("Sketcher::SketchObject", "Sketch004")
sketch5.AttachmentSupport = (doc.getObject("XY_Plane"), [""])
sketch5.MapMode = "FlatFace"
sketch5.AttachmentOffset = App.Placement(App.Vector(0, 0, 597), App.Rotation())
sketch5.addGeometry([
    Part.LineSegment(App.Vector(-272, 0, 0), App.Vector(-272, -29, 0)),
    Part.LineSegment(App.Vector(-272, -29, 0), App.Vector(278, -29, 0)),
    Part.LineSegment(App.Vector(278, -29, 0), App.Vector(278, 0, 0)),
    Part.LineSegment(App.Vector(278, 0, 0), App.Vector(-272, 0, 0)),
], False)
sketch5.addConstraint([
    Sketcher.Constraint("Coincident", 0, 2, 1, 1),
    Sketcher.Constraint("Coincident", 1, 2, 2, 1),
    Sketcher.Constraint("Coincident", 2, 2, 3, 1),
    Sketcher.Constraint("Coincident", 3, 2, 0, 1),
    Sketcher.Constraint("Vertical", 0),
    Sketcher.Constraint("Horizontal", 1),
    Sketcher.Constraint("Vertical", 2),
    Sketcher.Constraint("Horizontal", 3),
    Sketcher.Constraint("PointOnObject", 2, 2, -1),
    Sketcher.Constraint("DistanceX", 1, 1, 1, 2, 550.0),
    Sketcher.Constraint("DistanceY", 0, 2, 0, 1, 29.0),
    Sketcher.Constraint("DistanceX", 0, 2, -1, 1, 272.5),
])
sketch5.setExpression("Constraints[9]", "Params.sketch5_width")
sketch5.setExpression("Constraints[10]", "Params.sketch5_height")
pocket3 = body.newObject("PartDesign::Pocket", "Pocket002")
pocket3.Profile = sketch5
pocket3.Type = "ThroughAll"

doc.recompute()
